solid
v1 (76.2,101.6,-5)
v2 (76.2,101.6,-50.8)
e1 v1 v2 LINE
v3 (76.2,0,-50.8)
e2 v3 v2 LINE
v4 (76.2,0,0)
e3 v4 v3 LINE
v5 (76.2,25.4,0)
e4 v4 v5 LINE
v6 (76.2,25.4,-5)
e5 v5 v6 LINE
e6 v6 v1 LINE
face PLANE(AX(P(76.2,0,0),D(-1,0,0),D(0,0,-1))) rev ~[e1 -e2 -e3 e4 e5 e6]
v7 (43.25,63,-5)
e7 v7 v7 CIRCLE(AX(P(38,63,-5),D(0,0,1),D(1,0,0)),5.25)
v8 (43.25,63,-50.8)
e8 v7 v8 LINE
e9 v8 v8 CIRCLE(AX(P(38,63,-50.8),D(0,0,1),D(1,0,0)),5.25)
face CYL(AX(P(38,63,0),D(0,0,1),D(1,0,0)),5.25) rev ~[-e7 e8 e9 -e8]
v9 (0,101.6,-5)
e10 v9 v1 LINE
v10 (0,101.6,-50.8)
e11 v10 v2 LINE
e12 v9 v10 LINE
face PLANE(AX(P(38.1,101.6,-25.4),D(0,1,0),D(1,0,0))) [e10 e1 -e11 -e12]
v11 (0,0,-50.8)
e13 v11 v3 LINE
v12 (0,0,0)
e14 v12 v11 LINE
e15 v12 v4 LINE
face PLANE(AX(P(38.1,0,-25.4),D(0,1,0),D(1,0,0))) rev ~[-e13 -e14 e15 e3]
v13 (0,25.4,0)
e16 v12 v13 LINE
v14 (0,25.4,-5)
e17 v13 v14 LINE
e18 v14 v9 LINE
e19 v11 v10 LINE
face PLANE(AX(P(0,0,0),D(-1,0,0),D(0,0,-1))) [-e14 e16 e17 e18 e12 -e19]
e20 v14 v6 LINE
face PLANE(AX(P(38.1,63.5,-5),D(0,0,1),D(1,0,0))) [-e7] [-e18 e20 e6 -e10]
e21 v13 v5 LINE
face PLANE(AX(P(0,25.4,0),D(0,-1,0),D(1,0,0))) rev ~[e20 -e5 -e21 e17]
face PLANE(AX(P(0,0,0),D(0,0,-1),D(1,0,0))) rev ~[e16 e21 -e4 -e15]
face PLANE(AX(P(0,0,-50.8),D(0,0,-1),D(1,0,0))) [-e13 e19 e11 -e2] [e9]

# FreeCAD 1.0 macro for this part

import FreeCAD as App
import Part
import Sketcher
from FreeCAD import Vector


def add_polygon(sketch, points):
    """Adds a closed chain of lines whose ends are joined by coincident constraints."""
    first, n = sketch.GeometryCount, len(points)
    for a, b in zip(points, points[1:] + points[:1]):
        sketch.addGeometry(Part.LineSegment(App.Vector(*a, 0), App.Vector(*b, 0)), False)
    for i in range(n):
        sketch.addConstraint(Sketcher.Constraint("Coincident", first + i, 2, first + (i + 1) % n, 1))

doc = App.newDocument("Part")
body = doc.addObject("PartDesign::Body", "Body")

# Sketch on XZ plane
sketch1 = body.newObject("Sketcher::SketchObject", "Sketch")
sketch1.AttachmentSupport = (doc.getObject("XZ_Plane"), [""])
sketch1.MapMode = "FlatFace"
add_polygon(sketch1, [(0, -50.8), (0, 0), (76.2, 0), (76.2, -50.8)])  # lines 0-3
sketch1.addConstraint([
    Sketcher.Constraint("Vertical", 0),
    Sketcher.Constraint("Horizontal", 1),
    Sketcher.Constraint("Vertical", 2),
    Sketcher.Constraint("Horizontal", 3),
    Sketcher.Constraint("Coincident", 0, 2, -1, 1),
    Sketcher.Constraint("DistanceX", 1, 1, 1, 2, 76.2),
    Sketcher.Constraint("DistanceY", 0, 1, 0, 2, 50.8),
])
pad1 = body.newObject("PartDesign::Pad", "Pad")
pad1.Profile = sketch1
pad1.Length = 101.6
pad1.Reversed = True

# Sketch on XY plane
sketch2 = body.newObject("Sketcher::SketchObject", "Sketch001")
sketch2.AttachmentSupport = (doc.getObject("XY_Plane"), [""])
sketch2.MapMode = "FlatFace"
sketch2.addGeometry(Part.Circle(Vector(38, 63, 0), Vector(0, 0, 1), 5.25), False)
sketch2.addConstraint([
    Sketcher.Constraint("Diameter", 0, 10.5),
    Sketcher.Constraint("DistanceX", -1, 1, 0, 3, 38.0),
    Sketcher.Constraint("DistanceY", -1, 1, 0, 3, 63.0),
])
pocket1 = body.newObject("PartDesign::Pocket", "Pocket")
pocket1.Profile = sketch2
pocket1.Length = 300

# Sketch on XY plane
sketch3 = body.newObject("Sketcher::SketchObject", "Sketch002")
sketch3.AttachmentSupport = (doc.getObject("XY_Plane"), [""])
sketch3.MapMode = "FlatFace"
add_polygon(sketch3, [(0, 101.6), (0, 25.4), (76.2, 25.4), (76.2, 101.6)])  # lines 0-3
sketch3.addConstraint([
    Sketcher.Constraint("Vertical", 0),
    Sketcher.Constraint("Horizontal", 1),
    Sketcher.Constraint("Vertical", 2),
    Sketcher.Constraint("Horizontal", 3),
    Sketcher.Constraint("PointOnObject", 0, 2, -2),
    Sketcher.Constraint("Equal", 3, 0),
    Sketcher.Constraint("DistanceX", 1, 1, 1, 2, 76.2),
    Sketcher.Constraint("DistanceY", -1, 1, 0, 2, 25.4),
])
pocket2 = body.newObject("PartDesign::Pocket", "Pocket001")
pocket2.Profile = sketch3
pocket2.Length = 5

doc.recompute()
